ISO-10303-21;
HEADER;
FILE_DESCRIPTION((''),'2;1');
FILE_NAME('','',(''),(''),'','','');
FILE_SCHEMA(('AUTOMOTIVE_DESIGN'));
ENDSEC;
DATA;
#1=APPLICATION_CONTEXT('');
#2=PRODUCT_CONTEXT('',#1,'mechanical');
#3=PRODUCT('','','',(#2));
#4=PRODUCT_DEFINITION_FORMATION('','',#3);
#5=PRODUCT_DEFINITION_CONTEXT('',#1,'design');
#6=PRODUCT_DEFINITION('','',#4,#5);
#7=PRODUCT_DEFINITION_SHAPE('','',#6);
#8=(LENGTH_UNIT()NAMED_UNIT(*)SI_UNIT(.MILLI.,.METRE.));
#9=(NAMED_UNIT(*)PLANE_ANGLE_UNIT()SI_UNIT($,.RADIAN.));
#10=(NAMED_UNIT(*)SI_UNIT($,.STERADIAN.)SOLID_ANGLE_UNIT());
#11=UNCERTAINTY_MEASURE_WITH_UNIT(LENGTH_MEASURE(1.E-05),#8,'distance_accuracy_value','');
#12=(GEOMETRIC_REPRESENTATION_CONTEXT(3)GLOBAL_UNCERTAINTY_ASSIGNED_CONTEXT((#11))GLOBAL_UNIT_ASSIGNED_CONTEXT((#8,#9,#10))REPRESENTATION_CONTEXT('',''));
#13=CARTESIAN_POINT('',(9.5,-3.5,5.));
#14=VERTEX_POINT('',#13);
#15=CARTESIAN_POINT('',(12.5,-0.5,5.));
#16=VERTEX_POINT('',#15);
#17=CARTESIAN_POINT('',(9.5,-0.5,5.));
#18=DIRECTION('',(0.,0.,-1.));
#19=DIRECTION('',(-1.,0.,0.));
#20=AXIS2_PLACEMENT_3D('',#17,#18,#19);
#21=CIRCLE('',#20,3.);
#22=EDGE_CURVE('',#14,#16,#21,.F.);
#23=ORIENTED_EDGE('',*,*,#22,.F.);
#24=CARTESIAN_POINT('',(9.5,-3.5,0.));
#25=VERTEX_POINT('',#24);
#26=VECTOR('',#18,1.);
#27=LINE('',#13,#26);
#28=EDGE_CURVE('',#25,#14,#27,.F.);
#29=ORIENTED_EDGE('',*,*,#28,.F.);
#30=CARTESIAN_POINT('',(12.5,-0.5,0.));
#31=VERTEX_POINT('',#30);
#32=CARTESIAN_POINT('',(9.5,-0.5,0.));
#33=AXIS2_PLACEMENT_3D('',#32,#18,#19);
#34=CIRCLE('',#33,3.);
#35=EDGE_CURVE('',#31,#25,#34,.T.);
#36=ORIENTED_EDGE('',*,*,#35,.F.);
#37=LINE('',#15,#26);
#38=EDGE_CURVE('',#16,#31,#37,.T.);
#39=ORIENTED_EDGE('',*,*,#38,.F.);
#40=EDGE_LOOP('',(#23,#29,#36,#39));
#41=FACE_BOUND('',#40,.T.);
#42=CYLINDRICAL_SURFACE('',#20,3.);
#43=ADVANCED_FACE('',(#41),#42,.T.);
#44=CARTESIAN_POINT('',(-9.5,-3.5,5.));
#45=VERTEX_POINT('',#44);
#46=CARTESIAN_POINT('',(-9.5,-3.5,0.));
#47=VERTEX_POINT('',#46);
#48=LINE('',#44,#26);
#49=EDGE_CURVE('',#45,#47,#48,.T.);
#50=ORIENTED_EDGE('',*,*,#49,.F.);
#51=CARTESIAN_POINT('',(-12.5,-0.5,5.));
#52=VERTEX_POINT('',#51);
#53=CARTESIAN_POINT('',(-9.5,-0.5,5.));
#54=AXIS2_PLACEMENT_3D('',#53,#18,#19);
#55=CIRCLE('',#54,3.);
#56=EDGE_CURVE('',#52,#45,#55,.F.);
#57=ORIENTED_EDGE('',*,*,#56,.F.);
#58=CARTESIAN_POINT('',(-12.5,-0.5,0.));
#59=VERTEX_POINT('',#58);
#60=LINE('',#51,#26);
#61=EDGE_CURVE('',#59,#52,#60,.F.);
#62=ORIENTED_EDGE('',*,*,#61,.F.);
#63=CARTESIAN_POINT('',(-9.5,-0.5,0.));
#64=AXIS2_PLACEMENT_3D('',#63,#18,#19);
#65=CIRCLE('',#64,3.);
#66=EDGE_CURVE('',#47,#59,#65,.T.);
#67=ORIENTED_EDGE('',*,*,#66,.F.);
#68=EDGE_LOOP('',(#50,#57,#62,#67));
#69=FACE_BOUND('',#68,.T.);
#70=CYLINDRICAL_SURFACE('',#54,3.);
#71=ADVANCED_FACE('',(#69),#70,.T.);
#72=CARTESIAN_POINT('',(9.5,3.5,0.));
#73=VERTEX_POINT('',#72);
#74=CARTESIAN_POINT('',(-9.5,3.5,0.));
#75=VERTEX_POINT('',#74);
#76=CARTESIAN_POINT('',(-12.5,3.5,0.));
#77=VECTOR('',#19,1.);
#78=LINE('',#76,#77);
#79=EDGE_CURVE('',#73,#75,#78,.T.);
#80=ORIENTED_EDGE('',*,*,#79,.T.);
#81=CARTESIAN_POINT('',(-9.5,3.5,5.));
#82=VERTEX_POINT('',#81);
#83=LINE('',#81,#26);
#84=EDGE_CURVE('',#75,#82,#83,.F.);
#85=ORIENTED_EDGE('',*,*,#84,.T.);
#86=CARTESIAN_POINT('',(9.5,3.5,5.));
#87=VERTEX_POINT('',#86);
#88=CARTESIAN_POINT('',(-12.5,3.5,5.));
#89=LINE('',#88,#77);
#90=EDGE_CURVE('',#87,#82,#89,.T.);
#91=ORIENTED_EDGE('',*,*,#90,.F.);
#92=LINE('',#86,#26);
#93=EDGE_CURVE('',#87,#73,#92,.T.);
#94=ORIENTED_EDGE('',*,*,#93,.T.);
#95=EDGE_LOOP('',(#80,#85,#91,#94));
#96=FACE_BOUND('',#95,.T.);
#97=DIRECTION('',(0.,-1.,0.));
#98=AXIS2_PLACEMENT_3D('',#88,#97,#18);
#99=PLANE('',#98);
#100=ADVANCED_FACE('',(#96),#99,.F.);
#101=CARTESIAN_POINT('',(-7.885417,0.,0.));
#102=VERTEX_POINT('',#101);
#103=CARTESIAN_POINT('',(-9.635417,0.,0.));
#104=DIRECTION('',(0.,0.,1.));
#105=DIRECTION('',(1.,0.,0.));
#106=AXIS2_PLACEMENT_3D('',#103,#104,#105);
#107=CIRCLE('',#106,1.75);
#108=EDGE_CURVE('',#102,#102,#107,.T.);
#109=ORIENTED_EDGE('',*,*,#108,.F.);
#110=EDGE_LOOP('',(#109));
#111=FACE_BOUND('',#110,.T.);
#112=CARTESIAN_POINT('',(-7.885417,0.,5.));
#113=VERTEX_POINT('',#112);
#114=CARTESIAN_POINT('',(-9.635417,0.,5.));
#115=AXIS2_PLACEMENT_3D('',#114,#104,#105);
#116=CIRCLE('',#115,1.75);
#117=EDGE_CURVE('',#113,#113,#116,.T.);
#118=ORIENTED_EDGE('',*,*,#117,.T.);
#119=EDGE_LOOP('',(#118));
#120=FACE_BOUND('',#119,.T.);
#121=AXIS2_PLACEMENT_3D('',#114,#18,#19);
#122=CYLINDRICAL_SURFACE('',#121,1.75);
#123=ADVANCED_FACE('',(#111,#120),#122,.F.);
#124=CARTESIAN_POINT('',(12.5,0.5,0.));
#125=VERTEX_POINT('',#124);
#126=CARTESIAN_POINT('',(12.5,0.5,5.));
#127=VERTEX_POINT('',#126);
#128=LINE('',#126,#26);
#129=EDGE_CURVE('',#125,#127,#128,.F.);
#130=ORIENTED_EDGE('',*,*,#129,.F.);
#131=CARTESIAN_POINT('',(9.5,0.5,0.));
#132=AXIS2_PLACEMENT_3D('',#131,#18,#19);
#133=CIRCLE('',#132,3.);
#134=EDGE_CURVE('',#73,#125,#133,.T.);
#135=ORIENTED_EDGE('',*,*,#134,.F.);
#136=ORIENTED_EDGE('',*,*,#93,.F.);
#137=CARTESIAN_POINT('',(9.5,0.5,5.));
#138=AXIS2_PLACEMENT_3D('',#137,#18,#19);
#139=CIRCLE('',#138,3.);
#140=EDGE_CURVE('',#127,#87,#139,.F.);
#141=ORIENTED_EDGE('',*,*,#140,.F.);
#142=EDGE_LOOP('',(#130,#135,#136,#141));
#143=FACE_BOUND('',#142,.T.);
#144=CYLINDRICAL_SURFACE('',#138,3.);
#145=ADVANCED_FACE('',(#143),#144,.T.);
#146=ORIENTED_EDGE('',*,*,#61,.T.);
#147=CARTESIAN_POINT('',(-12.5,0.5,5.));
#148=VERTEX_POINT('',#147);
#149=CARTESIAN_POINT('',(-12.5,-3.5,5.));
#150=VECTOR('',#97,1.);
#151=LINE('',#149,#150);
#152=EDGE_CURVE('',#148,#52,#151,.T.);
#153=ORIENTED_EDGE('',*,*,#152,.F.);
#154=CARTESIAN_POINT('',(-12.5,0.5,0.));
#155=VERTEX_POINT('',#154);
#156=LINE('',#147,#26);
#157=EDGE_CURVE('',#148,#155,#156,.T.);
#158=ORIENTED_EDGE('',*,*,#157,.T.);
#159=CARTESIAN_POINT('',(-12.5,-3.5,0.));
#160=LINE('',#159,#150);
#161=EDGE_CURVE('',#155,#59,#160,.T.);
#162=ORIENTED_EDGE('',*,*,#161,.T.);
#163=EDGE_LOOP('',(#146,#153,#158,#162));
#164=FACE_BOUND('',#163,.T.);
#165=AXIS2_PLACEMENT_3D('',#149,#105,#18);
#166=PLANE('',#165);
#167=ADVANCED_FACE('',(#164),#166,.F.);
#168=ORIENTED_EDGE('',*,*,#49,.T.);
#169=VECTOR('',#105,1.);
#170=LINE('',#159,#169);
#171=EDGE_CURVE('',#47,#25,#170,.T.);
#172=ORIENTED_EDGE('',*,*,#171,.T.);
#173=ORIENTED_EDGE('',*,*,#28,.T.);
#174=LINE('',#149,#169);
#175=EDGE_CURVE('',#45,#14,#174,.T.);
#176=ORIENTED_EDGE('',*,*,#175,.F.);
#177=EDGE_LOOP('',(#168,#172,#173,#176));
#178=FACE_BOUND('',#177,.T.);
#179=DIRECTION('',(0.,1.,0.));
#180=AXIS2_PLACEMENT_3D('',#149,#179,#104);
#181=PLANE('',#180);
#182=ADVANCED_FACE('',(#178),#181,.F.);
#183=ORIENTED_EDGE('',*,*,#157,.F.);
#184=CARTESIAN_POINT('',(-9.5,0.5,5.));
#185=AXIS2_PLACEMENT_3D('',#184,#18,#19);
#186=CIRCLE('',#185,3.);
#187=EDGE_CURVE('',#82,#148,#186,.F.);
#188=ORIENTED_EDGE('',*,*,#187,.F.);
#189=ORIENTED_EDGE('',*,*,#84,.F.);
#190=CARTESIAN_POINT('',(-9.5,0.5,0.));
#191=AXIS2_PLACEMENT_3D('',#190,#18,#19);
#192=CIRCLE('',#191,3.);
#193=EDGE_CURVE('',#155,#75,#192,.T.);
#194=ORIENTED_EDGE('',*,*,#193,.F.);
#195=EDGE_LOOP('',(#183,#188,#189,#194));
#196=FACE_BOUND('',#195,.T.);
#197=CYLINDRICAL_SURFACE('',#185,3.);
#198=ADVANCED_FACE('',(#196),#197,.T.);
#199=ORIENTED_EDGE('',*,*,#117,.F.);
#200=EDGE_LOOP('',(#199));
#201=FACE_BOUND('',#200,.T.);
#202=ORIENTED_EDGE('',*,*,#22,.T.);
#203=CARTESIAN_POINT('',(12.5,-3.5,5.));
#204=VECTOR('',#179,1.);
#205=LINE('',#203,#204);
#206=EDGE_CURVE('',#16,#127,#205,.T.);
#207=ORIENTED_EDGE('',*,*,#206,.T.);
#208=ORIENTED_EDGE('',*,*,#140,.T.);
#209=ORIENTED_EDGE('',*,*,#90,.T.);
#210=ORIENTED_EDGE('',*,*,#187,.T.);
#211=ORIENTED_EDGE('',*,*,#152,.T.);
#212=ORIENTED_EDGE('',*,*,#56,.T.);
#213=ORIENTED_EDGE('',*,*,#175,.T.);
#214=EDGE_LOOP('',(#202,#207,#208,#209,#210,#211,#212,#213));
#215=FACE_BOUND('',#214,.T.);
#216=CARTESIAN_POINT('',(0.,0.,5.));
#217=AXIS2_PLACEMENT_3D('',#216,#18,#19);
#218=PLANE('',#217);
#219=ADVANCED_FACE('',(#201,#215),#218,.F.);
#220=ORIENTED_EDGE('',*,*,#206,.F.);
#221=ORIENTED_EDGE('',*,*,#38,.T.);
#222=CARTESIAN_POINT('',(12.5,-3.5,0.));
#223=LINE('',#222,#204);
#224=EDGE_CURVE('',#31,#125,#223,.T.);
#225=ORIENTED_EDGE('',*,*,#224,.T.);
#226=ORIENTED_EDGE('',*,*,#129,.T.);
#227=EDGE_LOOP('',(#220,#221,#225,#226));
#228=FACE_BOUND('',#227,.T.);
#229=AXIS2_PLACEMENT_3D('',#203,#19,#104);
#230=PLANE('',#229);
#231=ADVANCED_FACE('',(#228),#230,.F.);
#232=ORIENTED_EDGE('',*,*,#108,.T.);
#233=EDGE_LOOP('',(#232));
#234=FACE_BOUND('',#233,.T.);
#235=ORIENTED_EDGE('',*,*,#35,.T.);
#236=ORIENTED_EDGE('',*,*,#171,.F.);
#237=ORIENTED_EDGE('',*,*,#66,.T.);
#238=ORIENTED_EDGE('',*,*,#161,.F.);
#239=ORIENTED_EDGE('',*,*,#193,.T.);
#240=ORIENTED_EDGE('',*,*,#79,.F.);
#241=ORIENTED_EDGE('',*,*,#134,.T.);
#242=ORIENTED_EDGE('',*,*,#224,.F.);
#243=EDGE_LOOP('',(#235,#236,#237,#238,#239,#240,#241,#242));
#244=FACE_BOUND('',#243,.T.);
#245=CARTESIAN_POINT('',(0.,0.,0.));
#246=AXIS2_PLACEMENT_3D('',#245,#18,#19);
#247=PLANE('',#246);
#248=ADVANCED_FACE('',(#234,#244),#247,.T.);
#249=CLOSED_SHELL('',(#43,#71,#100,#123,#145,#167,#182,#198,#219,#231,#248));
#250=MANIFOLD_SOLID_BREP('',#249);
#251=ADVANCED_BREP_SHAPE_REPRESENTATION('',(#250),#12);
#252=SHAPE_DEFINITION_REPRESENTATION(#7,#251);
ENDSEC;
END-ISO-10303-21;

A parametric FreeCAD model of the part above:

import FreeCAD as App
import Part
import Sketcher


def edges_at(feature, points):
    """Names of the edges that pass closest to the given points."""
    edges = feature.Shape.Edges
    near = lambda p: min(range(len(edges)), key=lambda i: edges[i].distToShape(Part.Vertex(*p))[0])
    return sorted({f"Edge{near(p) + 1}" for p in points})


def add_polygon(sketch, points):
    """Adds a closed chain of lines whose ends are joined by coincident constraints."""
    first, n = sketch.GeometryCount, len(points)
    for a, b in zip(points, points[1:] + points[:1]):
        sketch.addGeometry(Part.LineSegment(App.Vector(*a, 0), App.Vector(*b, 0)), False)
    for i in range(n):
        sketch.addConstraint(Sketcher.Constraint("Coincident", first + i, 2, first + (i + 1) % n, 1))

doc = App.newDocument("Part")
body = doc.addObject("PartDesign::Body", "Body")

# Sketch on XY plane
sketch1 = doc.addObject("Sketcher::SketchObject", "Sketch")
body.addObject(sketch1)
sketch1.AttachmentSupport = (doc.XY_Plane, [""])
sketch1.MapMode = "FlatFace"
add_polygon(sketch1, [(-12.5, 3.5), (-12.5, -3.5), (12.5, -3.5), (12.5, 3.5)])  # lines 0-3
sketch1.addGeometry(Part.Circle(App.Vector(-9.635417, 0, 0), App.Vector(0, 0, 1), 1.75), False)  # 4
sketch1.addConstraint([
    Sketcher.Constraint("Vertical", 0),
    Sketcher.Constraint("Horizontal", 1),
    Sketcher.Constraint("Vertical", 2),
    Sketcher.Constraint("Horizontal", 3),
    Sketcher.Constraint("Symmetric", 0, 2, 2, 2, -1, 1),
    Sketcher.Constraint("PointOnObject", 4, 3, -1),
    Sketcher.Constraint("Diameter", 4, 3.5),
    Sketcher.Constraint("DistanceX", 1, 1, 1, 2, 25.0),
    Sketcher.Constraint("DistanceY", 0, 2, 0, 1, 7.0),
    Sketcher.Constraint("DistanceX", 4, 3, -1, 1, 9.635417),
])
pad1 = doc.addObject("PartDesign::Pad", "Pad")
body.addObject(pad1)
pad1.Profile = sketch1
pad1.Length = 5
doc.recompute()

fillet = doc.addObject("PartDesign::Fillet", "Fillet")
body.addObject(fillet)
fillet.Base = (pad1, edges_at(pad1, [(-12.5, -3.5, 2.5), (-12.5, 3.5, 2.5)]))
fillet.Radius = 3
doc.recompute()

fillet2 = doc.addObject("PartDesign::Fillet", "Fillet001")
body.addObject(fillet2)
fillet2.Base = (fillet, edges_at(fillet, [(12.5, -3.5, 2.5), (12.5, 3.5, 2.5)]))
fillet2.Radius = 3

doc.recompute()
